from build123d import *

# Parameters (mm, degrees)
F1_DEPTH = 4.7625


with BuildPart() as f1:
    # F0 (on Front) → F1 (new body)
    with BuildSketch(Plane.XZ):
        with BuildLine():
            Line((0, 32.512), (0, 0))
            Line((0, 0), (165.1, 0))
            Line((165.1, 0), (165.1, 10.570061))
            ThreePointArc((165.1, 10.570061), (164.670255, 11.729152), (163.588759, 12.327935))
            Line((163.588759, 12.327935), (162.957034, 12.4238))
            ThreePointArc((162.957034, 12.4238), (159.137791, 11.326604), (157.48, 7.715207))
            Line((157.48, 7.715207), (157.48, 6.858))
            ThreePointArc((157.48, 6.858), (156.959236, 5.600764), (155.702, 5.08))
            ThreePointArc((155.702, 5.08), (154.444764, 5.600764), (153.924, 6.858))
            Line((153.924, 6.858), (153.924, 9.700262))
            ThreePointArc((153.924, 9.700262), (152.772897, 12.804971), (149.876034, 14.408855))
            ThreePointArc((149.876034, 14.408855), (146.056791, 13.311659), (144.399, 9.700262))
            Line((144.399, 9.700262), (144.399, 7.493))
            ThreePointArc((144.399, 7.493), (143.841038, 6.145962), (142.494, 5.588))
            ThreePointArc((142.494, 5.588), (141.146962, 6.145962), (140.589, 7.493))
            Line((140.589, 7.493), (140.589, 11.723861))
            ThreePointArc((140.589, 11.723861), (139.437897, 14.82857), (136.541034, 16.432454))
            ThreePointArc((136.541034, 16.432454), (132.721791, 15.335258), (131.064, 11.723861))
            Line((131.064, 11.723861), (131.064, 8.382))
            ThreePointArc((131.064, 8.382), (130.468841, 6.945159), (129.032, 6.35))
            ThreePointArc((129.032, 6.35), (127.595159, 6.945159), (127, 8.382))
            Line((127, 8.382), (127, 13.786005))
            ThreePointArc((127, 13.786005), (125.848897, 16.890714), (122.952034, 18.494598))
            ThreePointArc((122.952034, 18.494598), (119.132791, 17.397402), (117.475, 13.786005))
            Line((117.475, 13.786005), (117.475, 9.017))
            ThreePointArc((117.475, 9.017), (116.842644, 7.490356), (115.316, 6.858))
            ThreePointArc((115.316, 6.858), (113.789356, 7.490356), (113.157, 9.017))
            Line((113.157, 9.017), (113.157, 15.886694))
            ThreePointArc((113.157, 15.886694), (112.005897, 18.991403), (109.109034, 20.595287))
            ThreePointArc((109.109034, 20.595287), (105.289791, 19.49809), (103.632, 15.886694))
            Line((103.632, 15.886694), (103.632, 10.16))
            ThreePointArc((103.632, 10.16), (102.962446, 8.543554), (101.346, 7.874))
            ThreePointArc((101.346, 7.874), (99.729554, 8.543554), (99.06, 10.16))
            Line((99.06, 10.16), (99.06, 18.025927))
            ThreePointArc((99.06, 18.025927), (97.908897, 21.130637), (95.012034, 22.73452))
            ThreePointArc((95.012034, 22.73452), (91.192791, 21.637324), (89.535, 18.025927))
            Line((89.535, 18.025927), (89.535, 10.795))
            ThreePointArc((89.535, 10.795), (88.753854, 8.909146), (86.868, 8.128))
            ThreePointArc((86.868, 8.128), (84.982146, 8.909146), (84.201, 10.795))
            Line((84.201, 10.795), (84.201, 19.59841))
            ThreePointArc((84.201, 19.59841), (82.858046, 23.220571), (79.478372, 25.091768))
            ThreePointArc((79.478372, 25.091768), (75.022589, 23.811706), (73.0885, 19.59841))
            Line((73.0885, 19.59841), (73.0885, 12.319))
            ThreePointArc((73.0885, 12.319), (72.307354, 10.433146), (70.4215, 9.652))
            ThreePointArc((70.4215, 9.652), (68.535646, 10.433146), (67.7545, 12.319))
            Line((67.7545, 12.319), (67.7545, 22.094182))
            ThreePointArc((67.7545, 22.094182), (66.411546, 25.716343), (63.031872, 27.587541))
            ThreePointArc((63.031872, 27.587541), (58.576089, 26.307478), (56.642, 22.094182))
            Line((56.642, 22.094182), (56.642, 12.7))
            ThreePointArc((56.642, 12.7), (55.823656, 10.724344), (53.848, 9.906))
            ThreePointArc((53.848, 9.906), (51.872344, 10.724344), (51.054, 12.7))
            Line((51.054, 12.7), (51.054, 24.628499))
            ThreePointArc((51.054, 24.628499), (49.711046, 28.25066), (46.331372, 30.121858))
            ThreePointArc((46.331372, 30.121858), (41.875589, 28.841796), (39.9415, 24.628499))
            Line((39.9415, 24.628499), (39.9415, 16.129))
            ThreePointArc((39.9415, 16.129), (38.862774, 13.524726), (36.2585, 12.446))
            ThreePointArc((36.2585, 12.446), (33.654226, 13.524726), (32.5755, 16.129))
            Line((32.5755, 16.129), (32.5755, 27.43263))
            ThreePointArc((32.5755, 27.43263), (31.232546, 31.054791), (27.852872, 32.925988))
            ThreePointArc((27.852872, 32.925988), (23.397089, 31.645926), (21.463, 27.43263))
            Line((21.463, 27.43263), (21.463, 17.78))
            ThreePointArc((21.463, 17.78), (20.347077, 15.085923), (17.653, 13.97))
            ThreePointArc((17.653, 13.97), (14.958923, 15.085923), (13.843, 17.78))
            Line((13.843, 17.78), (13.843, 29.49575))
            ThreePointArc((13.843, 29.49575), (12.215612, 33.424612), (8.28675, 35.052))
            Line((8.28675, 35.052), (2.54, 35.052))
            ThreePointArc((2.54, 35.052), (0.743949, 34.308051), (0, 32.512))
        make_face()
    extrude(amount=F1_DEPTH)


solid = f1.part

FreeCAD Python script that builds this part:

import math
import FreeCAD as App
import Part
import Sketcher

V = App.Vector
Q = App.Units.Quantity

doc = App.newDocument("Part")
body = doc.addObject("PartDesign::Body", "Body")

sketch1 = doc.addObject("Sketcher::SketchObject", "Sketch")
body.addObject(sketch1)
sketch1.AttachmentSupport = (doc.XZ_Plane, [""])
sketch1.MapMode = "FlatFace"
sketch1.addGeometry(Part.LineSegment(V(0, 32.5, 0), V(0, 0, 0)), False)
sketch1.addGeometry(Part.LineSegment(V(0, 0, 0), V(165.1, 0, 0)), False)
sketch1.addGeometry(Part.LineSegment(V(165.1, 0, 0), V(165.1, 10.6, 0)), False)
sketch1.addGeometry(Part.ArcOfCircle(Part.Circle(V(163.3, 10.6, 0), V(0, 0, 1), 1.8), math.radians(0), math.radians(81)), False)
sketch1.addGeometry(Part.LineSegment(V(163.6, 12.3, 0), V(163, 12.4, 0)), False)
sketch1.addGeometry(Part.ArcOfCircle(Part.Circle(V(162.2, 7.7, 0), V(0, 0, 1), 4.8), math.radians(81), math.radians(180)), False)
sketch1.addGeometry(Part.LineSegment(V(157.5, 7.7, 0), V(157.5, 6.9, 0)), False)
sketch1.addGeometry(Part.ArcOfCircle(Part.Circle(V(155.7, 6.9, 0), V(0, 0, 1), 1.8), math.radians(-90), math.radians(0)), False)
sketch1.addGeometry(Part.ArcOfCircle(Part.Circle(V(155.7, 6.9, 0), V(0, 0, 1), 1.8), math.radians(180), math.radians(270)), False)
sketch1.addGeometry(Part.LineSegment(V(153.9, 6.9, 0), V(153.9, 9.7, 0)), False)
sketch1.addGeometry(Part.ArcOfCircle(Part.Circle(V(149.2, 9.7, 0), V(0, 0, 1), 4.8), math.radians(0), math.radians(81)), False)
sketch1.addGeometry(Part.ArcOfCircle(Part.Circle(V(149.2, 9.7, 0), V(0, 0, 1), 4.8), math.radians(81), math.radians(180)), False)
sketch1.addGeometry(Part.LineSegment(V(144.4, 9.7, 0), V(144.4, 7.5, 0)), False)
sketch1.addGeometry(Part.ArcOfCircle(Part.Circle(V(142.5, 7.5, 0), V(0, 0, 1), 1.9), math.radians(-90), math.radians(0)), False)
sketch1.addGeometry(Part.ArcOfCircle(Part.Circle(V(142.5, 7.5, 0), V(0, 0, 1), 1.9), math.radians(-180), math.radians(-90)), False)
sketch1.addGeometry(Part.LineSegment(V(140.6, 7.5, 0), V(140.6, 11.7, 0)), False)
sketch1.addGeometry(Part.ArcOfCircle(Part.Circle(V(135.8, 11.7, 0), V(0, 0, 1), 4.8), math.radians(0), math.radians(81)), False)
sketch1.addGeometry(Part.ArcOfCircle(Part.Circle(V(135.8, 11.7, 0), V(0, 0, 1), 4.8), math.radians(81), math.radians(180)), False)
sketch1.addGeometry(Part.LineSegment(V(131.1, 11.7, 0), V(131.1, 8.4, 0)), False)
sketch1.addGeometry(Part.ArcOfCircle(Part.Circle(V(129, 8.4, 0), V(0, 0, 1), 2), math.radians(-90), math.radians(0)), False)
sketch1.addGeometry(Part.ArcOfCircle(Part.Circle(V(129, 8.4, 0), V(0, 0, 1), 2), math.radians(180), math.radians(270)), False)
sketch1.addGeometry(Part.LineSegment(V(127, 8.4, 0), V(127, 13.8, 0)), False)
sketch1.addGeometry(Part.ArcOfCircle(Part.Circle(V(122.2, 13.8, 0), V(0, 0, 1), 4.8), math.radians(0), math.radians(81)), False)
sketch1.addGeometry(Part.ArcOfCircle(Part.Circle(V(122.2, 13.8, 0), V(0, 0, 1), 4.8), math.radians(81), math.radians(180)), False)
sketch1.addGeometry(Part.LineSegment(V(117.5, 13.8, 0), V(117.5, 9, 0)), False)
sketch1.addGeometry(Part.ArcOfCircle(Part.Circle(V(115.3, 9, 0), V(0, 0, 1), 2.2), math.radians(-90), math.radians(0)), False)
sketch1.addGeometry(Part.ArcOfCircle(Part.Circle(V(115.3, 9, 0), V(0, 0, 1), 2.2), math.radians(180), math.radians(270)), False)
sketch1.addGeometry(Part.LineSegment(V(113.2, 9, 0), V(113.2, 15.9, 0)), False)
sketch1.addGeometry(Part.ArcOfCircle(Part.Circle(V(108.4, 15.9, 0), V(0, 0, 1), 4.8), math.radians(0), math.radians(81)), False)
sketch1.addGeometry(Part.ArcOfCircle(Part.Circle(V(108.4, 15.9, 0), V(0, 0, 1), 4.8), math.radians(81), math.radians(180)), False)
sketch1.addGeometry(Part.LineSegment(V(103.6, 15.9, 0), V(103.6, 10.2, 0)), False)
sketch1.addGeometry(Part.ArcOfCircle(Part.Circle(V(101.3, 10.2, 0), V(0, 0, 1), 2.3), math.radians(-90), math.radians(0)), False)
sketch1.addGeometry(Part.ArcOfCircle(Part.Circle(V(101.3, 10.2, 0), V(0, 0, 1), 2.3), math.radians(-180), math.radians(-90)), False)
sketch1.addGeometry(Part.LineSegment(V(99.1, 10.2, 0), V(99.1, 18, 0)), False)
sketch1.addGeometry(Part.ArcOfCircle(Part.Circle(V(94.3, 18, 0), V(0, 0, 1), 4.8), math.radians(0), math.radians(81)), False)
sketch1.addGeometry(Part.ArcOfCircle(Part.Circle(V(94.3, 18, 0), V(0, 0, 1), 4.8), math.radians(81), math.radians(180)), False)
sketch1.addGeometry(Part.LineSegment(V(89.5, 18, 0), V(89.5, 10.8, 0)), False)
sketch1.addGeometry(Part.ArcOfCircle(Part.Circle(V(86.9, 10.8, 0), V(0, 0, 1), 2.7), math.radians(-90), math.radians(0)), False)
sketch1.addGeometry(Part.ArcOfCircle(Part.Circle(V(86.9, 10.8, 0), V(0, 0, 1), 2.7), math.radians(180), math.radians(270)), False)
sketch1.addGeometry(Part.LineSegment(V(84.2, 10.8, 0), V(84.2, 19.6, 0)), False)
sketch1.addGeometry(Part.ArcOfCircle(Part.Circle(V(78.6, 19.6, 0), V(0, 0, 1), 5.6), math.radians(0), math.radians(81)), False)
sketch1.addGeometry(Part.ArcOfCircle(Part.Circle(V(78.6, 19.6, 0), V(0, 0, 1), 5.6), math.radians(81), math.radians(180)), False)
sketch1.addGeometry(Part.LineSegment(V(73.1, 19.6, 0), V(73.1, 12.3, 0)), False)
sketch1.addGeometry(Part.ArcOfCircle(Part.Circle(V(70.4, 12.3, 0), V(0, 0, 1), 2.7), math.radians(-90), math.radians(0)), False)
sketch1.addGeometry(Part.ArcOfCircle(Part.Circle(V(70.4, 12.3, 0), V(0, 0, 1), 2.7), math.radians(180), math.radians(270)), False)
sketch1.addGeometry(Part.LineSegment(V(67.8, 12.3, 0), V(67.8, 22.1, 0)), False)
sketch1.addGeometry(Part.ArcOfCircle(Part.Circle(V(62.2, 22.1, 0), V(0, 0, 1), 5.6), math.radians(0), math.radians(81)), False)
sketch1.addGeometry(Part.ArcOfCircle(Part.Circle(V(62.2, 22.1, 0), V(0, 0, 1), 5.6), math.radians(81), math.radians(180)), False)
sketch1.addGeometry(Part.LineSegment(V(56.6, 22.1, 0), V(56.6, 12.7, 0)), False)
sketch1.addGeometry(Part.ArcOfCircle(Part.Circle(V(53.8, 12.7, 0), V(0, 0, 1), 2.8), math.radians(-90), math.radians(0)), False)
sketch1.addGeometry(Part.ArcOfCircle(Part.Circle(V(53.8, 12.7, 0), V(0, 0, 1), 2.8), math.radians(-180), math.radians(-90)), False)
sketch1.addGeometry(Part.LineSegment(V(51.1, 12.7, 0), V(51.1, 24.6, 0)), False)
sketch1.addGeometry(Part.ArcOfCircle(Part.Circle(V(45.5, 24.6, 0), V(0, 0, 1), 5.6), math.radians(0), math.radians(81)), False)
sketch1.addGeometry(Part.ArcOfCircle(Part.Circle(V(45.5, 24.6, 0), V(0, 0, 1), 5.6), math.radians(81), math.radians(180)), False)
sketch1.addGeometry(Part.LineSegment(V(39.9, 24.6, 0), V(39.9, 16.1, 0)), False)
sketch1.addGeometry(Part.ArcOfCircle(Part.Circle(V(36.3, 16.1, 0), V(0, 0, 1), 3.7), math.radians(-90), math.radians(0)), False)
sketch1.addGeometry(Part.ArcOfCircle(Part.Circle(V(36.3, 16.1, 0), V(0, 0, 1), 3.7), math.radians(-180), math.radians(-90)), False)
sketch1.addGeometry(Part.LineSegment(V(32.6, 16.1, 0), V(32.6, 27.4, 0)), False)
sketch1.addGeometry(Part.ArcOfCircle(Part.Circle(V(27, 27.4, 0), V(0, 0, 1), 5.6), math.radians(0), math.radians(81)), False)
sketch1.addGeometry(Part.ArcOfCircle(Part.Circle(V(27, 27.4, 0), V(0, 0, 1), 5.6), math.radians(81), math.radians(180)), False)
sketch1.addGeometry(Part.LineSegment(V(21.5, 27.4, 0), V(21.5, 17.8, 0)), False)
sketch1.addGeometry(Part.ArcOfCircle(Part.Circle(V(17.7, 17.8, 0), V(0, 0, 1), 3.8), math.radians(-90), math.radians(0)), False)
sketch1.addGeometry(Part.ArcOfCircle(Part.Circle(V(17.7, 17.8, 0), V(0, 0, 1), 3.8), math.radians(180), math.radians(270)), False)
sketch1.addGeometry(Part.LineSegment(V(13.8, 17.8, 0), V(13.8, 29.5, 0)), False)
sketch1.addGeometry(Part.ArcOfCircle(Part.Circle(V(8.3, 29.5, 0), V(0, 0, 1), 5.6), math.radians(0), math.radians(90)), False)
sketch1.addGeometry(Part.LineSegment(V(8.3, 35.1, 0), V(2.5, 35.1, 0)), False)
sketch1.addGeometry(Part.ArcOfCircle(Part.Circle(V(2.5, 32.5, 0), V(0, 0, 1), 2.5), math.radians(90), math.radians(180)), False)
sketch1.addConstraint(Sketcher.Constraint("Coincident", 0, 2, 1, 1))
sketch1.addConstraint(Sketcher.Constraint("Coincident", 1, 2, 2, 1))
sketch1.addConstraint(Sketcher.Constraint("Tangent", 2, 2, 3, 1))
sketch1.addConstraint(Sketcher.Constraint("Tangent", 3, 2, 4, 1))
sketch1.addConstraint(Sketcher.Constraint("Tangent", 4, 2, 5, 1))
sketch1.addConstraint(Sketcher.Constraint("Tangent", 5, 2, 6, 1))
sketch1.addConstraint(Sketcher.Constraint("Tangent", 6, 2, 7, 2))
sketch1.addConstraint(Sketcher.Constraint("Tangent", 7, 1, 8, 2))
sketch1.addConstraint(Sketcher.Constraint("Tangent", 8, 1, 9, 1))
sketch1.addConstraint(Sketcher.Constraint("Tangent", 9, 2, 10, 1))
sketch1.addConstraint(Sketcher.Constraint("Tangent", 10, 2, 11, 1))
sketch1.addConstraint(Sketcher.Constraint("Tangent", 11, 2, 12, 1))
sketch1.addConstraint(Sketcher.Constraint("Tangent", 12, 2, 13, 2))
sketch1.addConstraint(Sketcher.Constraint("Tangent", 13, 1, 14, 2))
sketch1.addConstraint(Sketcher.Constraint("Tangent", 14, 1, 15, 1))
sketch1.addConstraint(Sketcher.Constraint("Tangent", 15, 2, 16, 1))
sketch1.addConstraint(Sketcher.Constraint("Tangent", 16, 2, 17, 1))
sketch1.addConstraint(Sketcher.Constraint("Tangent", 17, 2, 18, 1))
sketch1.addConstraint(Sketcher.Constraint("Tangent", 18, 2, 19, 2))
sketch1.addConstraint(Sketcher.Constraint("Tangent", 19, 1, 20, 2))
sketch1.addConstraint(Sketcher.Constraint("Tangent", 20, 1, 21, 1))
sketch1.addConstraint(Sketcher.Constraint("Tangent", 21, 2, 22, 1))
sketch1.addConstraint(Sketcher.Constraint("Tangent", 22, 2, 23, 1))
sketch1.addConstraint(Sketcher.Constraint("Tangent", 23, 2, 24, 1))
sketch1.addConstraint(Sketcher.Constraint("Tangent", 24, 2, 25, 2))
sketch1.addConstraint(Sketcher.Constraint("Tangent", 25, 1, 26, 2))
sketch1.addConstraint(Sketcher.Constraint("Tangent", 26, 1, 27, 1))
sketch1.addConstraint(Sketcher.Constraint("Tangent", 27, 2, 28, 1))
sketch1.addConstraint(Sketcher.Constraint("Tangent", 28, 2, 29, 1))
sketch1.addConstraint(Sketcher.Constraint("Tangent", 29, 2, 30, 1))
sketch1.addConstraint(Sketcher.Constraint("Tangent", 30, 2, 31, 2))
sketch1.addConstraint(Sketcher.Constraint("Tangent", 31, 1, 32, 2))
sketch1.addConstraint(Sketcher.Constraint("Tangent", 32, 1, 33, 1))
sketch1.addConstraint(Sketcher.Constraint("Tangent", 33, 2, 34, 1))
sketch1.addConstraint(Sketcher.Constraint("Tangent", 34, 2, 35, 1))
sketch1.addConstraint(Sketcher.Constraint("Tangent", 35, 2, 36, 1))
sketch1.addConstraint(Sketcher.Constraint("Tangent", 36, 2, 37, 2))
sketch1.addConstraint(Sketcher.Constraint("Tangent", 37, 1, 38, 2))
sketch1.addConstraint(Sketcher.Constraint("Tangent", 38, 1, 39, 1))
sketch1.addConstraint(Sketcher.Constraint("Tangent", 39, 2, 40, 1))
sketch1.addConstraint(Sketcher.Constraint("Tangent", 40, 2, 41, 1))
sketch1.addConstraint(Sketcher.Constraint("Tangent", 41, 2, 42, 1))
sketch1.addConstraint(Sketcher.Constraint("Tangent", 42, 2, 43, 2))
sketch1.addConstraint(Sketcher.Constraint("Tangent", 43, 1, 44, 2))
sketch1.addConstraint(Sketcher.Constraint("Tangent", 44, 1, 45, 1))
sketch1.addConstraint(Sketcher.Constraint("Tangent", 45, 2, 46, 1))
sketch1.addConstraint(Sketcher.Constraint("Tangent", 46, 2, 47, 1))
sketch1.addConstraint(Sketcher.Constraint("Tangent", 47, 2, 48, 1))
sketch1.addConstraint(Sketcher.Constraint("Tangent", 48, 2, 49, 2))
sketch1.addConstraint(Sketcher.Constraint("Tangent", 49, 1, 50, 2))
sketch1.addConstraint(Sketcher.Constraint("Tangent", 50, 1, 51, 1))
sketch1.addConstraint(Sketcher.Constraint("Tangent", 51, 2, 52, 1))
sketch1.addConstraint(Sketcher.Constraint("Tangent", 52, 2, 53, 1))
sketch1.addConstraint(Sketcher.Constraint("Tangent", 53, 2, 54, 1))
sketch1.addConstraint(Sketcher.Constraint("Tangent", 54, 2, 55, 2))
sketch1.addConstraint(Sketcher.Constraint("Tangent", 55, 1, 56, 2))
sketch1.addConstraint(Sketcher.Constraint("Tangent", 56, 1, 57, 1))
sketch1.addConstraint(Sketcher.Constraint("Tangent", 57, 2, 58, 1))
sketch1.addConstraint(Sketcher.Constraint("Tangent", 58, 2, 59, 1))
sketch1.addConstraint(Sketcher.Constraint("Tangent", 59, 2, 60, 1))
sketch1.addConstraint(Sketcher.Constraint("Tangent", 60, 2, 61, 2))
sketch1.addConstraint(Sketcher.Constraint("Tangent", 61, 1, 62, 2))
sketch1.addConstraint(Sketcher.Constraint("Tangent", 62, 1, 63, 1))
sketch1.addConstraint(Sketcher.Constraint("Tangent", 63, 2, 64, 1))
sketch1.addConstraint(Sketcher.Constraint("Tangent", 64, 2, 65, 1))
sketch1.addConstraint(Sketcher.Constraint("Tangent", 65, 2, 66, 1))
sketch1.addConstraint(Sketcher.Constraint("Tangent", 66, 2, 0, 1))
sketch1.addConstraint(Sketcher.Constraint("Vertical", 0))
sketch1.addConstraint(Sketcher.Constraint("Horizontal", 1))
sketch1.addConstraint(Sketcher.Constraint("Vertical", 2))
sketch1.addConstraint(Sketcher.Constraint("Vertical", 6))
sketch1.addConstraint(Sketcher.Constraint("Vertical", 9))
sketch1.addConstraint(Sketcher.Constraint("Vertical", 12))
sketch1.addConstraint(Sketcher.Constraint("Vertical", 15))
sketch1.addConstraint(Sketcher.Constraint("Vertical", 18))
sketch1.addConstraint(Sketcher.Constraint("Vertical", 21))
sketch1.addConstraint(Sketcher.Constraint("Vertical", 24))
sketch1.addConstraint(Sketcher.Constraint("Vertical", 27))
sketch1.addConstraint(Sketcher.Constraint("Vertical", 30))
sketch1.addConstraint(Sketcher.Constraint("Vertical", 33))
sketch1.addConstraint(Sketcher.Constraint("Vertical", 36))
sketch1.addConstraint(Sketcher.Constraint("Vertical", 39))
sketch1.addConstraint(Sketcher.Constraint("Vertical", 42))
sketch1.addConstraint(Sketcher.Constraint("Vertical", 45))
sketch1.addConstraint(Sketcher.Constraint("Vertical", 48))
sketch1.addConstraint(Sketcher.Constraint("Vertical", 51))
sketch1.addConstraint(Sketcher.Constraint("Vertical", 54))
sketch1.addConstraint(Sketcher.Constraint("Vertical", 57))
sketch1.addConstraint(Sketcher.Constraint("Vertical", 60))
sketch1.addConstraint(Sketcher.Constraint("Vertical", 63))
sketch1.addConstraint(Sketcher.Constraint("Horizontal", 65))
sketch1.addConstraint(Sketcher.Constraint("Coincident", 0, 2, -1, 1))
sketch1.addConstraint(Sketcher.Constraint("Equal", 3, 7))
sketch1.addConstraint(Sketcher.Constraint("Equal", 7, 8))
sketch1.addConstraint(Sketcher.Constraint("Equal", 5, 10))
sketch1.addConstraint(Sketcher.Constraint("Equal", 10, 11))
sketch1.addConstraint(Sketcher.Constraint("Equal", 13, 14))
sketch1.addConstraint(Sketcher.Constraint("Equal", 11, 16))
sketch1.addConstraint(Sketcher.Constraint("Equal", 16, 17))
sketch1.addConstraint(Sketcher.Constraint("Equal", 19, 20))
sketch1.addConstraint(Sketcher.Constraint("Equal", 17, 22))
sketch1.addConstraint(Sketcher.Constraint("Equal", 22, 23))
sketch1.addConstraint(Sketcher.Constraint("Equal", 25, 26))
sketch1.addConstraint(Sketcher.Constraint("Equal", 23, 28))
sketch1.addConstraint(Sketcher.Constraint("Equal", 28, 29))
sketch1.addConstraint(Sketcher.Constraint("Equal", 31, 32))
sketch1.addConstraint(Sketcher.Constraint("Equal", 29, 35))
sketch1.addConstraint(Sketcher.Constraint("Equal", 37, 38))
sketch1.addConstraint(Sketcher.Constraint("Equal", 40, 41))
sketch1.addConstraint(Sketcher.Constraint("Equal", 38, 43))
sketch1.addConstraint(Sketcher.Constraint("Equal", 43, 44))
sketch1.addConstraint(Sketcher.Constraint("Equal", 41, 46))
sketch1.addConstraint(Sketcher.Constraint("Equal", 46, 47))
sketch1.addConstraint(Sketcher.Constraint("Equal", 49, 50))
sketch1.addConstraint(Sketcher.Constraint("Equal", 47, 52))
sketch1.addConstraint(Sketcher.Constraint("Equal", 52, 53))
sketch1.addConstraint(Sketcher.Constraint("Equal", 55, 56))
sketch1.addConstraint(Sketcher.Constraint("Equal", 53, 58))
sketch1.addConstraint(Sketcher.Constraint("Equal", 58, 59))
sketch1.addConstraint(Sketcher.Constraint("Equal", 61, 62))
sketch1.addConstraint(Sketcher.Constraint("Equal", 59, 64))
sketch1.addConstraint(Sketcher.Constraint("Horizontal", 8, 1, 25, 1))
sketch1.addConstraint(Sketcher.Constraint("Horizontal", 35, 3, 33, 2))
sketch1.addConstraint(Sketcher.Constraint("Vertical", 8, 3, 7, 1))
sketch1.addConstraint(Sketcher.Constraint("Vertical", 14, 3, 13, 1))
sketch1.addConstraint(Sketcher.Constraint("Vertical", 20, 3, 19, 1))
sketch1.addConstraint(Sketcher.Constraint("Vertical", 26, 3, 25, 1))
sketch1.addConstraint(Sketcher.Constraint("Vertical", 32, 3, 31, 1))
sketch1.addConstraint(Sketcher.Constraint("Vertical", 38, 3, 37, 1))
sketch1.addConstraint(Sketcher.Constraint("Vertical", 44, 3, 43, 1))
sketch1.addConstraint(Sketcher.Constraint("Vertical", 50, 3, 49, 1))
sketch1.addConstraint(Sketcher.Constraint("Vertical", 56, 3, 55, 1))
sketch1.addConstraint(Sketcher.Constraint("Vertical", 62, 3, 61, 1))
sketch1.addConstraint(Sketcher.Constraint("Radius", 66, Q("0.1 in")))
sketch1.addConstraint(Sketcher.Constraint("Radius", 3, Q("0.07 in")))
sketch1.addConstraint(Sketcher.Constraint("Radius", 19, Q("0.08 in")))
sketch1.addConstraint(Sketcher.Constraint("Radius", 31, Q("0.09 in")))
sketch1.addConstraint(Sketcher.Constraint("Radius", 49, Q("0.11 in")))
sketch1.addConstraint(Sketcher.Constraint("Radius", 61, Q("0.15 in")))
sketch1.addConstraint(Sketcher.Constraint("DistanceX", 1, 1, 1, 2, Q("6.5 in")))
sketch1.addConstraint(Sketcher.Constraint("DistanceX", -1, 1, 20, 1, Q("5 in")))
sketch1.addConstraint(Sketcher.Constraint("Radius", 5, Q("0.1875 in")))
sketch1.addConstraint(Sketcher.Constraint("Radius", 13, Q("0.0750001 in")))
sketch1.addConstraint(Sketcher.Constraint("Radius", 25, Q("0.0849999 in")))
sketch1.addConstraint(Sketcher.Constraint("Radius", 37, Q("0.105 in")))
sketch1.addConstraint(Sketcher.Constraint("Radius", 40, Q("0.21875 in")))
sketch1.addConstraint(Sketcher.Constraint("Radius", 55, Q("0.145 in")))
sketch1.addConstraint(Sketcher.Constraint("DistanceY", 0, 2, 0, 1, Q("1.28 in")))
sketch1.addConstraint(Sketcher.Constraint("DistanceY", -1, 1, 31, 3, Q("0.4 in")))
sketch1.addConstraint(Sketcher.Constraint("DistanceY", -1, 1, 49, 3, Q("0.5 in")))
sketch1.addConstraint(Sketcher.Constraint("DistanceY", -1, 1, 61, 3, Q("0.7 in")))
sketch1.addConstraint(Sketcher.Constraint("DistanceY", -1, 1, 7, 1, Q("0.2 in")))
sketch1.addConstraint(Sketcher.Constraint("DistanceY", -1, 1, 19, 3, Q("0.33 in")))
sketch1.addConstraint(Sketcher.Constraint("DistanceY", -1, 1, 13, 1, Q("0.22 in")))
sketch1.addConstraint(Sketcher.Constraint("DistanceY", -1, 1, 37, 1, Q("0.32 in")))
sketch1.addConstraint(Sketcher.Constraint("DistanceY", -1, 1, 43, 1, Q("0.38 in")))
sketch1.addConstraint(Sketcher.Constraint("DistanceY", -1, 1, 55, 1, Q("0.49 in")))
sketch1.addConstraint(Sketcher.Constraint("DistanceY", 9, 1, 9, 2, Q("0.1119001 in")))
sketch1.addConstraint(Sketcher.Constraint("DistanceY", 51, 1, 51, 2, 11.928499))
sketch1.addConstraint(Sketcher.Constraint("DistanceY", -1, 1, 52, 2, Q("1.1858999 in")))
sketch1.addConstraint(Sketcher.Constraint("DistanceY", 2, 1, 2, 2, 10.570061))
sketch1.addConstraint(Sketcher.Constraint("DistanceY", 15, 1, 15, 2, 4.230861))
sketch1.addConstraint(Sketcher.Constraint("DistanceY", 39, 1, 39, 2, 8.80341))
sketch1.addConstraint(Sketcher.Constraint("DistanceY", 45, 1, 45, 2, 9.775182))
sketch1.addConstraint(Sketcher.Constraint("DistanceY", 57, 1, 57, 2, 11.30363))
sketch1.addConstraint(Sketcher.Constraint("DistanceY", -1, 1, 4, 2, 12.4238))
sketch1.addConstraint(Sketcher.Constraint("DistanceY", -1, 1, 22, 2, 18.494598))
sketch1.addConstraint(Sketcher.Constraint("DistanceY", 21, 1, 21, 2, 5.404005))
sketch1.addConstraint(Sketcher.Constraint("DistanceY", 27, 1, 27, 2, 6.869694))
sketch1.addConstraint(Sketcher.Constraint("DistanceY", 33, 1, 33, 2, 7.865927))
sketch1.addConstraint(Sketcher.Constraint("DistanceY", -1, 1, 34, 2, 22.73452))
sketch1.addConstraint(Sketcher.Constraint("DistanceX", -1, 1, 40, 2, 79.478372))
sketch1.addConstraint(Sketcher.Constraint("DistanceY", -1, 1, 46, 2, 27.587541))
sketch1.addConstraint(Sketcher.Constraint("DistanceX", -1, 1, 58, 2, 27.852872))
sketch1.addConstraint(Sketcher.Constraint("DistanceX", -1, 1, 10, 2, 149.876034))
sketch1.addConstraint(Sketcher.Constraint("DistanceX", -1, 1, 16, 2, 136.541034))
sketch1.addConstraint(Sketcher.Constraint("DistanceX", -1, 1, 28, 2, 109.109034))
pad1 = doc.addObject("PartDesign::Pad", "Pad")
body.addObject(pad1)
pad1.Profile = sketch1
pad1.Length = Q("0.1875 in")

doc.recompute()
